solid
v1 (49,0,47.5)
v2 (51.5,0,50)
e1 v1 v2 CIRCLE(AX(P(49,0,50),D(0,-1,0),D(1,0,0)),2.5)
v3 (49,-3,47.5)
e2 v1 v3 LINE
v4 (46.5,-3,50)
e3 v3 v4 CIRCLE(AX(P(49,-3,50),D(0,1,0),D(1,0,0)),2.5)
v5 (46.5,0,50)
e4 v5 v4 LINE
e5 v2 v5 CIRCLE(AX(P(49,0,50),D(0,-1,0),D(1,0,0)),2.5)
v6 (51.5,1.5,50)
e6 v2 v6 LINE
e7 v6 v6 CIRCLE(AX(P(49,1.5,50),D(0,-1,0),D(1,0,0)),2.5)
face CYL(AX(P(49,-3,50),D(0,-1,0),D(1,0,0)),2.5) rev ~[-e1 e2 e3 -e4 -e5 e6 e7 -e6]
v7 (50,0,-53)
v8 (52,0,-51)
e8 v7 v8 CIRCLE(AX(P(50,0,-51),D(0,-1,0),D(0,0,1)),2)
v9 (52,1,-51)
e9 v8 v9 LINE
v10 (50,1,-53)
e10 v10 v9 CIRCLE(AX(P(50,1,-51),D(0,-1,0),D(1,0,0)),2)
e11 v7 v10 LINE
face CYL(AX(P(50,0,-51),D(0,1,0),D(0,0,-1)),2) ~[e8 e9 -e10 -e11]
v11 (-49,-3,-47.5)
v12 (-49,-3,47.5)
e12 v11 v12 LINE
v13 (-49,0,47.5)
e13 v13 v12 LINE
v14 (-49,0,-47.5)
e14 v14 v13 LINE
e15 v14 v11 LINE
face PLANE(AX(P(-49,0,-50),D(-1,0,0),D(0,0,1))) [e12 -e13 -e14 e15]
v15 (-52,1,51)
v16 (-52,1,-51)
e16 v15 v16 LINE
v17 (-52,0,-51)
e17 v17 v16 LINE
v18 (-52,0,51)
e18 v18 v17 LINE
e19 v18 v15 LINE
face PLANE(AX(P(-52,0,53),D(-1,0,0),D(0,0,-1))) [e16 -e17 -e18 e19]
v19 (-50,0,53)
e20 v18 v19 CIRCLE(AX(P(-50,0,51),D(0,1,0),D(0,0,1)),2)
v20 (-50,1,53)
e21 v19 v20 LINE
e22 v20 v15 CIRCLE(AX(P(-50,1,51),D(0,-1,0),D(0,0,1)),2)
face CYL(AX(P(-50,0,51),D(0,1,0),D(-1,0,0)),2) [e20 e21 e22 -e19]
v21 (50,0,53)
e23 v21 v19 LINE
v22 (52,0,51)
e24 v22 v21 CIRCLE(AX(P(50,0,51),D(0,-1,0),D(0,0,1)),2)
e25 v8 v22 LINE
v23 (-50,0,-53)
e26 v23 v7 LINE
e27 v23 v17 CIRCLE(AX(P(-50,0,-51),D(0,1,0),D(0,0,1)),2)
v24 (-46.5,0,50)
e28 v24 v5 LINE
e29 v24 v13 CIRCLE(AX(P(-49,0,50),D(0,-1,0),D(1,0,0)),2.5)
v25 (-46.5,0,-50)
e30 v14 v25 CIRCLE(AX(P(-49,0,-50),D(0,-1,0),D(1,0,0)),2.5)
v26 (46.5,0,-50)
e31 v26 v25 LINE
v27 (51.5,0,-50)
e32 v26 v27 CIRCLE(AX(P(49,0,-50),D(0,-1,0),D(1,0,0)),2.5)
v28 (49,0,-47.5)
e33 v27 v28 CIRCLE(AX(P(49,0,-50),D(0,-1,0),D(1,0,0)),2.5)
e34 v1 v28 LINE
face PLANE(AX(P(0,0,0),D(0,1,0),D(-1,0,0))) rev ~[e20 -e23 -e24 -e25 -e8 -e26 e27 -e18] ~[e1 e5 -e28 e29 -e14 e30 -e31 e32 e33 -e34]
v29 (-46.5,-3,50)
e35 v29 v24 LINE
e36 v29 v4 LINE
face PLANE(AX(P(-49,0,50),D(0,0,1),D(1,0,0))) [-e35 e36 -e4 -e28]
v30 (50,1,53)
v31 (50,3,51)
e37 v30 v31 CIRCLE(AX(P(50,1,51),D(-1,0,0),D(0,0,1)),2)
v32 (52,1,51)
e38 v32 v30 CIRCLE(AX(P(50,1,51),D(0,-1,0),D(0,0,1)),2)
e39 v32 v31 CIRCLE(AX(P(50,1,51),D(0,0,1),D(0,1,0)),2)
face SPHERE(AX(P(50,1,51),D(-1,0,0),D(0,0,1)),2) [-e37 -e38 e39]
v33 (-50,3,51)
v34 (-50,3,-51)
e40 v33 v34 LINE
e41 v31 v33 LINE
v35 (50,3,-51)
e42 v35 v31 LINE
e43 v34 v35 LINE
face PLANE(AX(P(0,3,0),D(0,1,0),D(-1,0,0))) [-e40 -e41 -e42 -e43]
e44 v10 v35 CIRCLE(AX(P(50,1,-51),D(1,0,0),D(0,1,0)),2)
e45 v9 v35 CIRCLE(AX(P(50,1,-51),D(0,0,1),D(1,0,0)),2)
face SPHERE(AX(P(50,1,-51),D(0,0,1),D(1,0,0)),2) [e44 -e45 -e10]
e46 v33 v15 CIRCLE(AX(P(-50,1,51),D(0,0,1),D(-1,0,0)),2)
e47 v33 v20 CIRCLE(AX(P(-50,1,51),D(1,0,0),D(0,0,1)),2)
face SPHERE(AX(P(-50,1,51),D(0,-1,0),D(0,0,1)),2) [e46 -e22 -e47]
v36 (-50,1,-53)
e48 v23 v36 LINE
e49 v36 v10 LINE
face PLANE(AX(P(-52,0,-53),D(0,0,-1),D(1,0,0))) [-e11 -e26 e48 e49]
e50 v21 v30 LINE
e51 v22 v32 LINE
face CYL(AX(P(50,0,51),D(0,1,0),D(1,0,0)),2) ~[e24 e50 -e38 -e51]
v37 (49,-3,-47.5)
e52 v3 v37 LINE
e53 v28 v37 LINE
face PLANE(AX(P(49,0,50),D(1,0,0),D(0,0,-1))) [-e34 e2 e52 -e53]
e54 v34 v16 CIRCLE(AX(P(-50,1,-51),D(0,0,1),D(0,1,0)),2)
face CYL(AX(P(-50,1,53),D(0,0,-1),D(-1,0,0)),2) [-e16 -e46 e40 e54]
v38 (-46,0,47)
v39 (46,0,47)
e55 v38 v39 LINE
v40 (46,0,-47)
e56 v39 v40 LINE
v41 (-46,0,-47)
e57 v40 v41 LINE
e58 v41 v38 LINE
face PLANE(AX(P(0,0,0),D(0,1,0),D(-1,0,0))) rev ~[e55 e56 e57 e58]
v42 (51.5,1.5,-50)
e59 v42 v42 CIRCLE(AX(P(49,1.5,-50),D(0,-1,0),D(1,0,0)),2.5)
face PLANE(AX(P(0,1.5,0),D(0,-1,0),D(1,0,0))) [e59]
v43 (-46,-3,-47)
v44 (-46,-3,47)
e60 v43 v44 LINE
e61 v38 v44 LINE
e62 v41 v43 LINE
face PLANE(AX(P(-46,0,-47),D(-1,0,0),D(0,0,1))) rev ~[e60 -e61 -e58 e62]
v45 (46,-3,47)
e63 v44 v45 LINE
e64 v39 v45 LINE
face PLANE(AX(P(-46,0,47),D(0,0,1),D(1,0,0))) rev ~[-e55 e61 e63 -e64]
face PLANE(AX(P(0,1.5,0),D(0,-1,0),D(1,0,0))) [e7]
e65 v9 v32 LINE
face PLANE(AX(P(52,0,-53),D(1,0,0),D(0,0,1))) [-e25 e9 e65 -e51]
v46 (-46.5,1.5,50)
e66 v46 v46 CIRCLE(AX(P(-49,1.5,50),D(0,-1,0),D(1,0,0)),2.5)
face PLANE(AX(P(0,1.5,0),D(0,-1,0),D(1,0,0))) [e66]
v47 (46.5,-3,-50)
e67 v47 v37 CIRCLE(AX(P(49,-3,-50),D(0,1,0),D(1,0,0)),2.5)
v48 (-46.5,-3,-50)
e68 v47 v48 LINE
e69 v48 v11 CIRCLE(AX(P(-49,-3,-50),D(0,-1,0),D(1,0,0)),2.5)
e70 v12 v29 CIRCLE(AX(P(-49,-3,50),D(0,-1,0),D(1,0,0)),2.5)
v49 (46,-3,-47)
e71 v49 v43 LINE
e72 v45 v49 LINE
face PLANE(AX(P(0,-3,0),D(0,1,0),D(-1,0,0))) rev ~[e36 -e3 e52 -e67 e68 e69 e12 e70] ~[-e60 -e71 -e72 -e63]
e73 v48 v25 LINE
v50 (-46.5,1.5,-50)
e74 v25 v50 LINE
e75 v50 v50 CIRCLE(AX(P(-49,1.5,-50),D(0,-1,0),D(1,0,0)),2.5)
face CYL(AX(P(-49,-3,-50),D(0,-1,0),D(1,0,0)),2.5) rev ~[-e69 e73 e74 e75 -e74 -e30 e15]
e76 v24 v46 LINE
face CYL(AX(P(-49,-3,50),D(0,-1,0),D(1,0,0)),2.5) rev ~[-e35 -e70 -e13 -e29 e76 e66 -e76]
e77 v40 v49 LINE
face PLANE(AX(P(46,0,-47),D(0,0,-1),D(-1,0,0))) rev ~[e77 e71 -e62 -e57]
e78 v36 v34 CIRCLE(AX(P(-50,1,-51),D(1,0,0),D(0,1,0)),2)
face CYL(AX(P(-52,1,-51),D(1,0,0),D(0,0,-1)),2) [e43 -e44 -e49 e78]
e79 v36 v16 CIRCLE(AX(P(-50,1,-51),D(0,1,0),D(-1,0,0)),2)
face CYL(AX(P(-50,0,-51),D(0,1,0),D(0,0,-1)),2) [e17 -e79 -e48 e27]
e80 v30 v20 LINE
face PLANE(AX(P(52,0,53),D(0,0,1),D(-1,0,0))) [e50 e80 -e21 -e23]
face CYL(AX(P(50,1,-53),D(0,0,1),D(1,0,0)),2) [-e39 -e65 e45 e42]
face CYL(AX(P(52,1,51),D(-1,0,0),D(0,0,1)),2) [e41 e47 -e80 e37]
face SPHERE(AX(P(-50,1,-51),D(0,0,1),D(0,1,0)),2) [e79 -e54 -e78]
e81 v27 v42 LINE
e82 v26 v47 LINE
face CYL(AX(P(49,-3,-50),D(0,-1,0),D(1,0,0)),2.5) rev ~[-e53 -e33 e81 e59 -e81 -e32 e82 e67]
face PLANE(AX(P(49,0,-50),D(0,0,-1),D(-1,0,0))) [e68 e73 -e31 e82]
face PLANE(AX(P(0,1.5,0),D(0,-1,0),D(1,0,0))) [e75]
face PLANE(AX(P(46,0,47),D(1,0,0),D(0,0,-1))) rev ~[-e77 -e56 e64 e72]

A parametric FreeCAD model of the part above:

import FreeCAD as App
import Part
import Sketcher

V = App.Vector


def edges_at(feature, points):
    """Names of the edges that pass closest to the given points."""
    edges = feature.Shape.Edges
    near = lambda p: min(range(len(edges)), key=lambda i: edges[i].distToShape(Part.Vertex(*p))[0])
    return sorted({f"Edge{near(p) + 1}" for p in points})

doc = App.newDocument("Part")
body = doc.addObject("PartDesign::Body", "Body")

# Sketch on XZ plane
sketch1 = body.newObject("Sketcher::SketchObject", "Sketch")
sketch1.AttachmentSupport = (doc.getObject("XZ_Plane"), [""])
sketch1.MapMode = "FlatFace"
sketch1.addGeometry([
    Part.LineSegment(V(52, -53, 0), V(-52, -53, 0)),
    Part.LineSegment(V(-52, -53, 0), V(-52, 53, 0)),
    Part.LineSegment(V(-52, 53, 0), V(52, 53, 0)),
    Part.LineSegment(V(52, 53, 0), V(52, -53, 0)),
], False)
sketch1.addConstraint([
    Sketcher.Constraint("Coincident", 0, 2, 1, 1),
    Sketcher.Constraint("Coincident", 1, 2, 2, 1),
    Sketcher.Constraint("Coincident", 2, 2, 3, 1),
    Sketcher.Constraint("Coincident", 3, 2, 0, 1),
    Sketcher.Constraint("Horizontal", 0),
    Sketcher.Constraint("Vertical", 1),
    Sketcher.Constraint("Horizontal", 2),
    Sketcher.Constraint("Vertical", 3),
    Sketcher.Constraint("Symmetric", 0, 2, 2, 2, -1, 1),
    Sketcher.Constraint("DistanceX", 0, 2, 0, 1, 104.0),
    Sketcher.Constraint("DistanceY", 1, 1, 1, 2, 106.0),
])
pad1 = body.newObject("PartDesign::Pad", "Pad")
pad1.Profile = sketch1
pad1.Length = 3
pad1.Reversed = True

# Sketch on XZ plane
sketch2 = body.newObject("Sketcher::SketchObject", "Sketch001")
sketch2.AttachmentSupport = (doc.getObject("XZ_Plane"), [""])
sketch2.MapMode = "FlatFace"
sketch2.addGeometry([
    Part.LineSegment(V(-49, -50, 0), V(-49, 50, 0)),  # 0
    Part.LineSegment(V(-49, 50, 0), V(49, 50, 0)),  # 1
    Part.LineSegment(V(49, 50, 0), V(49, -50, 0)),  # 2
    Part.LineSegment(V(49, -50, 0), V(-49, -50, 0)),  # 3
    Part.LineSegment(V(46, 47, 0), V(-46, 47, 0)),  # 4
    Part.LineSegment(V(-46, 47, 0), V(-46, -47, 0)),  # 5
    Part.LineSegment(V(-46, -47, 0), V(46, -47, 0)),  # 6
    Part.LineSegment(V(46, -47, 0), V(46, 47, 0)),  # 7
], False)
sketch2.addConstraint([
    Sketcher.Constraint("Coincident", 0, 2, 1, 1),
    Sketcher.Constraint("Coincident", 1, 2, 2, 1),
    Sketcher.Constraint("Coincident", 2, 2, 3, 1),
    Sketcher.Constraint("Coincident", 3, 2, 0, 1),
    Sketcher.Constraint("Coincident", 4, 2, 5, 1),
    Sketcher.Constraint("Coincident", 5, 2, 6, 1),
    Sketcher.Constraint("Coincident", 6, 2, 7, 1),
    Sketcher.Constraint("Coincident", 7, 2, 4, 1),
    Sketcher.Constraint("Vertical", 0),
    Sketcher.Constraint("Horizontal", 1),
    Sketcher.Constraint("Vertical", 2),
    Sketcher.Constraint("Horizontal", 3),
    Sketcher.Constraint("Horizontal", 4),
    Sketcher.Constraint("Vertical", 5),
    Sketcher.Constraint("Horizontal", 6),
    Sketcher.Constraint("Vertical", 7),
    Sketcher.Constraint("Symmetric", 0, 2, 2, 2, -1, 1),
    Sketcher.Constraint("Symmetric", 4, 2, 6, 2, -1, 1),
    Sketcher.Constraint("DistanceX", 1, 1, 1, 2, 98.0),
    Sketcher.Constraint("DistanceY", 0, 1, 0, 2, 100.0),
    Sketcher.Constraint("DistanceX", 0, 2, 4, 2, 3.0),
    Sketcher.Constraint("DistanceY", 4, 2, 0, 2, 3.0),
])
pad2 = body.newObject("PartDesign::Pad", "Pad001")
pad2.Profile = sketch2
pad2.Length = 3

# Sketch on XZ plane
sketch3 = body.newObject("Sketcher::SketchObject", "Sketch002")
sketch3.AttachmentSupport = (doc.getObject("XZ_Plane"), [""])
sketch3.MapMode = "FlatFace"
sketch3.AttachmentOffset = App.Placement(V(0, 0, 3), App.Rotation())
sketch3.addGeometry([
    Part.Circle(V(-49, 50, 0), V(0, 0, 1), 2.5),
    Part.Circle(V(49, 50, 0), V(0, 0, 1), 2.5),
    Part.Circle(V(49, -50, 0), V(0, 0, 1), 2.5),
    Part.Circle(V(-49, -50, 0), V(0, 0, 1), 2.5),
], False)
sketch3.addConstraint([
    Sketcher.Constraint("Equal", 0, 1),
    Sketcher.Constraint("Equal", 1, 2),
    Sketcher.Constraint("Equal", 2, 3),
    Sketcher.Constraint("Symmetric", 0, 3, 2, 3, -1, 1),
    Sketcher.Constraint("Symmetric", 1, 3, 3, 3, -1, 1),
    Sketcher.Constraint("Symmetric", 0, 3, 1, 3, -2),
    Sketcher.Constraint("Diameter", 0, 5.0),
    Sketcher.Constraint("DistanceX", 0, 3, -1, 1, 49.0),
    Sketcher.Constraint("DistanceY", -1, 1, 0, 3, 50.0),
])
pocket1 = body.newObject("PartDesign::Pocket", "Pocket")
pocket1.Profile = sketch3
pocket1.Length = 4.5
doc.recompute()

fillet = body.newObject("PartDesign::Fillet", "Fillet")
fillet.Base = (pocket1, edges_at(pocket1, [
    (-52, 1.5, 53),
    (0, 3, 53),
    (-52, 3, 0),
    (52, 1.5, 53),
    (52, 3, 0),
    (52, 1.5, -53),
    (0, 3, -53),
    (-52, 1.5, -53),
]))
fillet.Radius = 2

doc.recompute()
